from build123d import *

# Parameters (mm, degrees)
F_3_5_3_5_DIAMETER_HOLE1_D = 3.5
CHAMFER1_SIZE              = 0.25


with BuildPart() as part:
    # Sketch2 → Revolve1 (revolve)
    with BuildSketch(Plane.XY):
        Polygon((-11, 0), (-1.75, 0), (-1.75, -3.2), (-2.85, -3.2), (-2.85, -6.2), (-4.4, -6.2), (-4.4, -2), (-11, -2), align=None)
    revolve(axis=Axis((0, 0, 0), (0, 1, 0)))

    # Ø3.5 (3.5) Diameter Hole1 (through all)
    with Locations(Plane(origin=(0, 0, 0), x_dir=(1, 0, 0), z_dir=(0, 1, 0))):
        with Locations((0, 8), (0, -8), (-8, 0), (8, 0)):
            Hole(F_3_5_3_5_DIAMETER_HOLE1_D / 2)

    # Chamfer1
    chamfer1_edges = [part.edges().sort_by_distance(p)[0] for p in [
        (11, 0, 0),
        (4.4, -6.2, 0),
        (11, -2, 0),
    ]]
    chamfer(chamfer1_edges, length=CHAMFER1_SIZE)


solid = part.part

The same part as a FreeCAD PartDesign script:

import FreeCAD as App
import Part
import Sketcher
from FreeCAD import Vector


def edges_at(feature, points):
    """Names of the edges that pass closest to the given points."""
    edges = feature.Shape.Edges
    near = lambda p: min(range(len(edges)), key=lambda i: edges[i].distToShape(Part.Vertex(*p))[0])
    return sorted({f"Edge{near(p) + 1}" for p in points})


def add_polygon(sketch, points):
    """Adds a closed chain of lines whose ends are joined by coincident constraints."""
    first, n = sketch.GeometryCount, len(points)
    for a, b in zip(points, points[1:] + points[:1]):
        sketch.addGeometry(Part.LineSegment(App.Vector(*a, 0), App.Vector(*b, 0)), False)
    for i in range(n):
        sketch.addConstraint(Sketcher.Constraint("Coincident", first + i, 2, first + (i + 1) % n, 1))

doc = App.newDocument("Part")
body = doc.addObject("PartDesign::Body", "Body")

# Sketch on XY plane
sketch1 = doc.addObject("Sketcher::SketchObject", "Sketch")
body.addObject(sketch1)
sketch1.AttachmentSupport = (doc.XY_Plane, [""])
sketch1.MapMode = "FlatFace"
add_polygon(sketch1, [(-1.75, 0), (-11, 0), (-11, -2), (-4.4, -2), (-4.4, -6.2), (-2.85, -6.2), (-2.85, -3.2), (-1.75, -3.2)])  # lines 0-7
sketch1.addConstraint([
    Sketcher.Constraint("Horizontal", 0),
    Sketcher.Constraint("Vertical", 1),
    Sketcher.Constraint("Horizontal", 2),
    Sketcher.Constraint("Vertical", 3),
    Sketcher.Constraint("Horizontal", 4),
    Sketcher.Constraint("Vertical", 5),
    Sketcher.Constraint("Horizontal", 6),
    Sketcher.Constraint("Vertical", 7),
    Sketcher.Constraint("PointOnObject", 0, 2, -1),
    Sketcher.Constraint("DistanceY", 1, 2, 1, 1, 2.0),
    Sketcher.Constraint("DistanceY", 5, 1, 5, 2, 3.0),
    Sketcher.Constraint("DistanceX", 2, 1, 2, 2, 6.6),
    Sketcher.Constraint("DistanceX", 6, 1, 6, 2, 1.1),
    Sketcher.Constraint("DistanceY", 3, 2, 3, 1, 4.2),
    Sketcher.Constraint("DistanceX", 0, 2, -1, 1, 11.0),
    Sketcher.Constraint("DistanceX", 0, 2, 0, 1, 9.25),
])
revolution = doc.addObject("PartDesign::Revolution", "Revolution")
body.addObject(revolution)
revolution.Profile = sketch1
revolution.ReferenceAxis = (sketch1, ["V_Axis"])
revolution.Angle = 360

# Sketch on XZ plane
sketch2 = doc.addObject("Sketcher::SketchObject", "Sketch001")
body.addObject(sketch2)
sketch2.AttachmentSupport = (doc.XZ_Plane, [""])
sketch2.MapMode = "FlatFace"
sketch2.addGeometry([
    Part.Circle(Vector(0, -8, 0), Vector(0, 0, 1), 1.75),
    Part.Circle(Vector(0, 8, 0), Vector(0, 0, 1), 1.75),
    Part.Circle(Vector(-8, 0, 0), Vector(0, 0, 1), 1.75),
    Part.Circle(Vector(8, 0, 0), Vector(0, 0, 1), 1.75),
], False)
sketch2.addConstraint([
    Sketcher.Constraint("Equal", 0, 1),
    Sketcher.Constraint("Equal", 1, 2),
    Sketcher.Constraint("Equal", 2, 3),
    Sketcher.Constraint("Symmetric", 0, 3, 1, 3, -1, 1),
    Sketcher.Constraint("Symmetric", 2, 3, 3, 3, -1, 1),
    Sketcher.Constraint("PointOnObject", 0, 3, -2),
    Sketcher.Constraint("PointOnObject", 2, 3, -1),
    Sketcher.Constraint("Diameter", 0, 3.5),
    Sketcher.Constraint("DistanceY", 0, 3, -1, 1, 8.0),
    Sketcher.Constraint("DistanceX", 2, 3, -1, 1, 8.0),
])
doc.recompute()
hole = doc.addObject("PartDesign::Hole", "Hole")
body.addObject(hole)
hole.Profile = sketch2
hole.ThreadType = "None"
hole.Diameter = 3.5
hole.DepthType = "ThroughAll"
hole.Reversed = True
doc.recompute()

chamfer = doc.addObject("PartDesign::Chamfer", "Chamfer")
body.addObject(chamfer)
chamfer.Base = (hole, edges_at(hole, [(11, 0, 0), (4.4, -6.2, 0), (11, -2, 0)]))
chamfer.Size = 0.25

doc.recompute()
